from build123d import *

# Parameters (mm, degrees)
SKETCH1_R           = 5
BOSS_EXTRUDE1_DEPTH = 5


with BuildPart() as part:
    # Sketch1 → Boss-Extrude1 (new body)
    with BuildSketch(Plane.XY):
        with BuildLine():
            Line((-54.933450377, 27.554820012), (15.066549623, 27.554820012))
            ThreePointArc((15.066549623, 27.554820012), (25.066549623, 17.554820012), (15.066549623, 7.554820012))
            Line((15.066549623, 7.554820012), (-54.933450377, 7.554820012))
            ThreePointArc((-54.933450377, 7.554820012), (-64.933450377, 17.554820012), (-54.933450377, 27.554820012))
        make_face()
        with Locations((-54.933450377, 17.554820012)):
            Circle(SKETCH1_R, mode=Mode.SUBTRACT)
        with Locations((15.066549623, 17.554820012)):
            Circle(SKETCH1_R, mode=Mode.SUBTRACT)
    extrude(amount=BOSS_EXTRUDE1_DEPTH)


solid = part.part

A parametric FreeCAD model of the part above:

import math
import FreeCAD as App
import Part
import Sketcher

V = App.Vector
Q = App.Units.Quantity

doc = App.newDocument("Part")
body = doc.addObject("PartDesign::Body", "Body")

sketch1 = body.newObject("Sketcher::SketchObject", "Sketch")
sketch1.AttachmentSupport = (doc.getObject("XY_Plane"), [""])
sketch1.MapMode = "FlatFace"
sketch1.addGeometry(Part.LineSegment(V(15, 28, 0), V(-55, 28, 0)), False)
sketch1.addGeometry(Part.ArcOfCircle(Part.Circle(V(-55, 18, 0), V(0, 0, 1), 10), math.radians(90), math.radians(270)), False)
sketch1.addGeometry(Part.LineSegment(V(-55, 8, 0), V(15, 8, 0)), False)
sketch1.addGeometry(Part.ArcOfCircle(Part.Circle(V(15, 18, 0), V(0, 0, 1), 10), math.radians(-90), math.radians(90)), False)
sketch1.addGeometry(Part.Circle(V(15, 18, 0), V(0, 0, 1), 5), False)
sketch1.addGeometry(Part.Circle(V(-55, 18, 0), V(0, 0, 1), 5), False)
sketch1.addConstraint(Sketcher.Constraint("Tangent", 0, 2, 1, 1))
sketch1.addConstraint(Sketcher.Constraint("Tangent", 1, 2, 2, 1))
sketch1.addConstraint(Sketcher.Constraint("Tangent", 2, 2, 3, 1))
sketch1.addConstraint(Sketcher.Constraint("Tangent", 3, 2, 0, 1))
sketch1.addConstraint(Sketcher.Constraint("Horizontal", 0))
sketch1.addConstraint(Sketcher.Constraint("Horizontal", 2))
sketch1.addConstraint(Sketcher.Constraint("Coincident", 4, 3, 3, 3))
sketch1.addConstraint(Sketcher.Constraint("Coincident", 5, 3, 1, 3))
sketch1.addConstraint(Sketcher.Constraint("Equal", 4, 5))
sketch1.addConstraint(Sketcher.Constraint("Diameter", 4, Q("10 mm")))
sketch1.addConstraint(Sketcher.Constraint("Radius", 1, Q("10 mm")))
sketch1.addConstraint(Sketcher.Constraint("DistanceX", 0, 2, 0, 1, Q("70 mm")))
sketch1.addConstraint(Sketcher.Constraint("DistanceX", 1, 3, -1, 1, Q("54.93345 mm")))
sketch1.addConstraint(Sketcher.Constraint("DistanceY", -1, 1, 1, 3, Q("17.55482 mm")))
pad1 = body.newObject("PartDesign::Pad", "Pad")
pad1.Profile = sketch1
pad1.Length = 5

doc.recompute()
